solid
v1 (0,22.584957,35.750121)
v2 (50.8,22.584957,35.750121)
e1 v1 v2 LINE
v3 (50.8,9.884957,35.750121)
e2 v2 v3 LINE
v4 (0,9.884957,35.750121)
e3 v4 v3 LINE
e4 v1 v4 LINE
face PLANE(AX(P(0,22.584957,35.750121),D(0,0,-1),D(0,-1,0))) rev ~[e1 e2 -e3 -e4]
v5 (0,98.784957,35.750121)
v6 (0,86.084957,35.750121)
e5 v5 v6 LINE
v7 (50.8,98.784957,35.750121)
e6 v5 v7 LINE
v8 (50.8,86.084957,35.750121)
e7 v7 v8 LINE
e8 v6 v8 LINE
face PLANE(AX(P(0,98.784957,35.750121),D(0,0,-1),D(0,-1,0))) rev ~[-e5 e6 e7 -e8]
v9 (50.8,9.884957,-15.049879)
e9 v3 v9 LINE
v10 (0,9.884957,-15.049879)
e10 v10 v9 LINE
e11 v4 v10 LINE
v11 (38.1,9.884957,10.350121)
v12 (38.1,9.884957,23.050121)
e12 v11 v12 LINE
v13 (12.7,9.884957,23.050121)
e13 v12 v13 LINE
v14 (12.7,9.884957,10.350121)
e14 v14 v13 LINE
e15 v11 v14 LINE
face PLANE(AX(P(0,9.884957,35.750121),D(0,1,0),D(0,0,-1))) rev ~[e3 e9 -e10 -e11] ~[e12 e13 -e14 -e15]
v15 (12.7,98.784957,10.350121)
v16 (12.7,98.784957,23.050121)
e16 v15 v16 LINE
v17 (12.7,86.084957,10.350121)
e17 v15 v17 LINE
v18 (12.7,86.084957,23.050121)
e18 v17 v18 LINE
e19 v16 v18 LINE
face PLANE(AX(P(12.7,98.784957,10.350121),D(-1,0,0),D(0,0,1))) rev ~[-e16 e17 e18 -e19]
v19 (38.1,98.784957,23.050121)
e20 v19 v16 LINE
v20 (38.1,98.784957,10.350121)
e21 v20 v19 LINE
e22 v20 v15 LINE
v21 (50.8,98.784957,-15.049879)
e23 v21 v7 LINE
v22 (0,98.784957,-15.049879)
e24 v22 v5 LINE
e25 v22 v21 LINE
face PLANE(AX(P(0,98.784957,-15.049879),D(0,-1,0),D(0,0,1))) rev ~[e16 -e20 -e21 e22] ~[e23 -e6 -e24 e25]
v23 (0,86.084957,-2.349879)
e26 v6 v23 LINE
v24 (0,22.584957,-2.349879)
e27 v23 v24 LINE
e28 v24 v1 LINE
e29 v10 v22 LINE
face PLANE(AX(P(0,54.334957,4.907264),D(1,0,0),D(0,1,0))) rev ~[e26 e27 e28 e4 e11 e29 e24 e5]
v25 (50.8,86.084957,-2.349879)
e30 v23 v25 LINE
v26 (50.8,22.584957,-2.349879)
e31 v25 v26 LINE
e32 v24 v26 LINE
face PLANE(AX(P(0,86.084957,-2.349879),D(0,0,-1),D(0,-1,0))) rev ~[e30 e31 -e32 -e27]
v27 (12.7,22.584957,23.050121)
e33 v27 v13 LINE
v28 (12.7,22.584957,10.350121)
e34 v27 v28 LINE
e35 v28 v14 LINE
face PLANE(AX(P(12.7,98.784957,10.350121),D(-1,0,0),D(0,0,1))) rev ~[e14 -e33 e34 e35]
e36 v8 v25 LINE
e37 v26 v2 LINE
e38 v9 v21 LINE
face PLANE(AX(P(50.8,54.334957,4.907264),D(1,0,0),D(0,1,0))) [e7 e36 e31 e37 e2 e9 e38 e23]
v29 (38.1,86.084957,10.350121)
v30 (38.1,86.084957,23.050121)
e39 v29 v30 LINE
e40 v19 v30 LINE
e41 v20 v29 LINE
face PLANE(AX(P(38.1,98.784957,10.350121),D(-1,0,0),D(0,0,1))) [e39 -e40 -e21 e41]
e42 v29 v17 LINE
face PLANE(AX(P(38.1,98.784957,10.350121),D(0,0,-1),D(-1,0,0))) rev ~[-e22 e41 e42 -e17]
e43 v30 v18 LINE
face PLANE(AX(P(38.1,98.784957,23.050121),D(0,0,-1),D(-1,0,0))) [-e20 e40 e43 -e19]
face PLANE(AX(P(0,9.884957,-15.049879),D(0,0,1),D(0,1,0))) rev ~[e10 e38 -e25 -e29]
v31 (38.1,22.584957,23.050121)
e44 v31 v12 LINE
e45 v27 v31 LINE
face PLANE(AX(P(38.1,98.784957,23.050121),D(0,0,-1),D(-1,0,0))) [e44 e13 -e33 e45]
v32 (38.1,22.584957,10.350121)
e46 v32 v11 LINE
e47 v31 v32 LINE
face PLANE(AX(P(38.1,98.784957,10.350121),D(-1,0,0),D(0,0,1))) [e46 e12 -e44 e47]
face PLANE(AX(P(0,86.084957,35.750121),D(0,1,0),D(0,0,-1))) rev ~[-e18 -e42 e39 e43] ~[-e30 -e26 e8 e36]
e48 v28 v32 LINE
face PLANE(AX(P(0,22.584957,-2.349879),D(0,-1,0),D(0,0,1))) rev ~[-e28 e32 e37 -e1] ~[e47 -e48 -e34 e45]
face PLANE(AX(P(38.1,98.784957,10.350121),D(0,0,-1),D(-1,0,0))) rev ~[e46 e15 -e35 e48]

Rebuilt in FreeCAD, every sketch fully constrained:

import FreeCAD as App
import Part
import Sketcher

V = App.Vector
Q = App.Units.Quantity


def add_polygon(sketch, points):
    """Adds a closed chain of lines whose ends are joined by coincident constraints."""
    first, n = sketch.GeometryCount, len(points)
    for a, b in zip(points, points[1:] + points[:1]):
        sketch.addGeometry(Part.LineSegment(App.Vector(*a, 0), App.Vector(*b, 0)), False)
    for i in range(n):
        sketch.addConstraint(Sketcher.Constraint("Coincident", first + i, 2, first + (i + 1) % n, 1))

doc = App.newDocument("Part")
params = doc.addObject("Spreadsheet::Sheet", "Params")
for row, (alias, value) in enumerate([
    ("sketch1_height", "2 in"),
    ("sketch1_width", "0.5 in"),
    ("sketch1_width2", "2.5 in"),
    ("sketch1_height2", "1.5 in"),
    ("pad1_length", "2 in"),
    ("sketch2_width", "1 in"),
    ("sketch2_height", "0.5 in"),
    ("pocket1_length", "3.5 in"),
], start=1):
    params.set(f"A{row}", alias)
    params.set(f"B{row}", "=" + value)
    params.setAlias(f"B{row}", alias)

body = doc.addObject("PartDesign::Body", "Body")

sketch1 = body.newObject("Sketcher::SketchObject", "Sketch")
sketch1.AttachmentSupport = (doc.getObject("YZ_Plane"), [""])
sketch1.MapMode = "FlatFace"
add_polygon(sketch1, [(99, 36), (86, 36), (86, -2), (23, -2), (23, 36), (10, 36), (10, -15), (99, -15)])
sketch1.addConstraint([
    Sketcher.Constraint("Horizontal", 0),
    Sketcher.Constraint("Vertical", 1),
    Sketcher.Constraint("Horizontal", 2),
    Sketcher.Constraint("Vertical", 3),
    Sketcher.Constraint("Horizontal", 4),
    Sketcher.Constraint("Vertical", 5),
    Sketcher.Constraint("Horizontal", 6),
    Sketcher.Constraint("Vertical", 7),
    Sketcher.Constraint("Horizontal", 0, 2, 3, 2),
    Sketcher.Constraint("Equal", 0, 4),
    Sketcher.Constraint("DistanceY", 5, 2, 5, 1, Q("2 in")),
    Sketcher.Constraint("DistanceX", 0, 2, 0, 1, Q("0.5 in")),
    Sketcher.Constraint("DistanceX", 2, 2, 2, 1, Q("2.5 in")),
    Sketcher.Constraint("DistanceY", 1, 2, 1, 1, Q("1.5 in")),
    Sketcher.Constraint("DistanceY", -1, 1, 0, 2, 35.750121),
    Sketcher.Constraint("DistanceX", -1, 1, 0, 2, 86.084957),
])
sketch1.setExpression("Constraints[18]", "Params.sketch1_height")
sketch1.setExpression("Constraints[19]", "Params.sketch1_width")
sketch1.setExpression("Constraints[20]", "Params.sketch1_width2")
sketch1.setExpression("Constraints[21]", "Params.sketch1_height2")
pad1 = body.newObject("PartDesign::Pad", "Pad")
pad1.Profile = sketch1
pad1.setExpression("Length", "Params.pad1_length")

sketch2 = body.newObject("Sketcher::SketchObject", "Sketch001")
sketch2.AttachmentSupport = (doc.getObject("XZ_Plane"), [""])
sketch2.MapMode = "FlatFace"
sketch2.AttachmentOffset = App.Placement(V(0, 0, -98.784957), App.Rotation())
add_polygon(sketch2, [(38, 23), (38, 10), (13, 10), (13, 23)])
sketch2.addConstraint([
    Sketcher.Constraint("Vertical", 0),
    Sketcher.Constraint("Horizontal", 1),
    Sketcher.Constraint("Vertical", 2),
    Sketcher.Constraint("Horizontal", 3),
    Sketcher.Constraint("DistanceX", 1, 2, 1, 1, Q("1 in")),
    Sketcher.Constraint("DistanceY", 0, 2, 0, 1, Q("0.5 in")),
    Sketcher.Constraint("DistanceX", -1, 1, 0, 2, Q("1.5 in")),
    Sketcher.Constraint("DistanceY", -1, 1, 0, 2, 10.350121),
])
sketch2.setExpression("Constraints[8]", "Params.sketch2_width")
sketch2.setExpression("Constraints[9]", "Params.sketch2_height")
pocket1 = body.newObject("PartDesign::Pocket", "Pocket")
pocket1.Profile = sketch2
pocket1.setExpression("Length", "Params.pocket1_length")
pocket1.Reversed = True

doc.recompute()
